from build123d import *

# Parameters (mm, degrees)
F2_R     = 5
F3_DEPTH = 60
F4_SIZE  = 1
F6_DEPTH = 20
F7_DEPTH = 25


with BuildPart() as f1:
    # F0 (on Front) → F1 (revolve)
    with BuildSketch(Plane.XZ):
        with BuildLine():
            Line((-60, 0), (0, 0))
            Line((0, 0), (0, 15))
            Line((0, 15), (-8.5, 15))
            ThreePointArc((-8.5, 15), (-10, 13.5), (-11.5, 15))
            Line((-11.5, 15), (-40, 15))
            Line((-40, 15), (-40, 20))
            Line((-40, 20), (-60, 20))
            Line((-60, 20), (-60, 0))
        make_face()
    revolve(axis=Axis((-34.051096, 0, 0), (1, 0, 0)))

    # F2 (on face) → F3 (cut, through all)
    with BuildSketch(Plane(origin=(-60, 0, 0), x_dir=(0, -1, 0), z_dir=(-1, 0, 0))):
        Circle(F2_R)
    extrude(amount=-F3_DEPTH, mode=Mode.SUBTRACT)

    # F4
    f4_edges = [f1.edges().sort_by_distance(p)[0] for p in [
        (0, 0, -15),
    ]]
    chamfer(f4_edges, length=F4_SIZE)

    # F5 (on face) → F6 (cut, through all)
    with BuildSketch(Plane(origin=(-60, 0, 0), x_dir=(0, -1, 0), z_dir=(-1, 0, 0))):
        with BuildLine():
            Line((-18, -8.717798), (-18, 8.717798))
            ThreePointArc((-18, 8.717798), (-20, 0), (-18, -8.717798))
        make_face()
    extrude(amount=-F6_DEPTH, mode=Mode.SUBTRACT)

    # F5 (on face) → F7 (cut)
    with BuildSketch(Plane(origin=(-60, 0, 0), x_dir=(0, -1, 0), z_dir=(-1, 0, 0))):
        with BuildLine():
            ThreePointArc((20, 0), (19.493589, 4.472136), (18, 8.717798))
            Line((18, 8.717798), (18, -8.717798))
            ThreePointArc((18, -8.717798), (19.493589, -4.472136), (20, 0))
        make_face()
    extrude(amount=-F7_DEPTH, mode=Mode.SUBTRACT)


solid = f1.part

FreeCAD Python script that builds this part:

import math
import FreeCAD as App
import Part
import Sketcher

V = App.Vector


def edges_at(feature, points):
    """Names of the edges that pass closest to the given points."""
    edges = feature.Shape.Edges
    near = lambda p: min(range(len(edges)), key=lambda i: edges[i].distToShape(Part.Vertex(*p))[0])
    return sorted({f"Edge{near(p) + 1}" for p in points})

doc = App.newDocument("Part")
body = doc.addObject("PartDesign::Body", "Body")

# Sketch on XZ plane
sketch1 = body.newObject("Sketcher::SketchObject", "Sketch")
sketch1.AttachmentSupport = (doc.getObject("XZ_Plane"), [""])
sketch1.MapMode = "FlatFace"
sketch1.addGeometry([
    Part.LineSegment(V(-60, 0, 0), V(0, 0, 0)),  # 0
    Part.LineSegment(V(0, 0, 0), V(0, 15, 0)),  # 1
    Part.LineSegment(V(0, 15, 0), V(-8.5, 15, 0)),  # 2
    Part.ArcOfCircle(Part.Circle(V(-10, 15, 0), V(0, 0, 1), 1.5), math.radians(180), math.radians(360)),  # 3
    Part.LineSegment(V(-11.5, 15, 0), V(-40, 15, 0)),  # 4
    Part.LineSegment(V(-40, 15, 0), V(-40, 20, 0)),  # 5
    Part.LineSegment(V(-40, 20, 0), V(-60, 20, 0)),  # 6
    Part.LineSegment(V(-60, 20, 0), V(-60, 0, 0)),  # 7
], False)
sketch1.addConstraint([
    Sketcher.Constraint("Coincident", 0, 2, 1, 1),
    Sketcher.Constraint("Coincident", 1, 2, 2, 1),
    Sketcher.Constraint("Coincident", 2, 2, 3, 2),
    Sketcher.Constraint("Coincident", 3, 1, 4, 1),
    Sketcher.Constraint("Coincident", 4, 2, 5, 1),
    Sketcher.Constraint("Coincident", 5, 2, 6, 1),
    Sketcher.Constraint("Coincident", 6, 2, 7, 1),
    Sketcher.Constraint("Coincident", 7, 2, 0, 1),
    Sketcher.Constraint("Horizontal", 0),
    Sketcher.Constraint("Vertical", 1),
    Sketcher.Constraint("Horizontal", 2),
    Sketcher.Constraint("Horizontal", 4),
    Sketcher.Constraint("Vertical", 5),
    Sketcher.Constraint("Horizontal", 6),
    Sketcher.Constraint("Vertical", 7),
    Sketcher.Constraint("Coincident", 0, 2, -1, 1),
    Sketcher.Constraint("Horizontal", 3, 3, 1, 2),
    Sketcher.Constraint("Horizontal", 2, 2, 3, 1),
    Sketcher.Constraint("Equal", 6, 7),
    Sketcher.Constraint("Radius", 3, 1.5),
    Sketcher.Constraint("DistanceX", 0, 1, 0, 2, 60.0),
    Sketcher.Constraint("DistanceX", 6, 2, 6, 1, 20.0),
    Sketcher.Constraint("DistanceY", 1, 1, 1, 2, 15.0),
    Sketcher.Constraint("DistanceX", 2, 2, 2, 1, 8.5),
])
revolution = body.newObject("PartDesign::Revolution", "Revolution")
revolution.Profile = sketch1
revolution.ReferenceAxis = (sketch1, ["H_Axis"])
revolution.Angle = 360

# Sketch on YZ plane
sketch2 = body.newObject("Sketcher::SketchObject", "Sketch001")
sketch2.AttachmentSupport = (doc.getObject("YZ_Plane"), [""])
sketch2.MapMode = "FlatFace"
sketch2.AttachmentOffset = App.Placement(V(0, 0, -60), App.Rotation())
sketch2.addGeometry(Part.Circle(V(0, 0, 0), V(0, 0, 1), 5), False)
sketch2.addConstraint([
    Sketcher.Constraint("Coincident", 0, 3, -1, 1),
    Sketcher.Constraint("Diameter", 0, 10.0),
])
pocket1 = body.newObject("PartDesign::Pocket", "Pocket")
pocket1.Profile = sketch2
pocket1.Type = "ThroughAll"
pocket1.Reversed = True
doc.recompute()

chamfer = body.newObject("PartDesign::Chamfer", "Chamfer")
chamfer.Base = (pocket1, edges_at(pocket1, [(0, 0, -15)]))
chamfer.Size = 1

# Sketch on YZ plane
sketch3 = body.newObject("Sketcher::SketchObject", "Sketch002")
sketch3.AttachmentSupport = (doc.getObject("YZ_Plane"), [""])
sketch3.MapMode = "FlatFace"
sketch3.AttachmentOffset = App.Placement(V(0, 0, -60), App.Rotation())
sketch3.addGeometry([
    Part.LineSegment(V(18, -9, 0), V(18, 9, 0)),
    Part.ArcOfCircle(Part.Circle(V(0, 0, 0), V(0, 0, 1), 20), math.radians(-26), math.radians(26)),
], False)
sketch3.addConstraint([
    Sketcher.Constraint("Coincident", 0, 1, 1, 1),
    Sketcher.Constraint("Coincident", 1, 2, 0, 2),
    Sketcher.Constraint("Vertical", 0),
    Sketcher.Constraint("Coincident", 1, 3, -1, 1),
    Sketcher.Constraint("Radius", 1, 20.0),
    Sketcher.Constraint("DistanceX", -1, 1, 0, 1, 18.0),
])
pocket2 = body.newObject("PartDesign::Pocket", "Pocket001")
pocket2.Profile = sketch3
pocket2.Type = "ThroughAll"
pocket2.Reversed = True

# Sketch on YZ plane
sketch4 = body.newObject("Sketcher::SketchObject", "Sketch003")
sketch4.AttachmentSupport = (doc.getObject("YZ_Plane"), [""])
sketch4.MapMode = "FlatFace"
sketch4.AttachmentOffset = App.Placement(V(0, 0, -60), App.Rotation())
sketch4.addGeometry([
    Part.ArcOfCircle(Part.Circle(V(0, 0, 0), V(0, 0, 1), 20), math.radians(154), math.radians(180)),
    Part.LineSegment(V(-18, 9, 0), V(-18, -9, 0)),
    Part.ArcOfCircle(Part.Circle(V(0, 0, 0), V(0, 0, 1), 20), math.radians(180), math.radians(206)),
], False)
sketch4.addConstraint([
    Sketcher.Constraint("Coincident", 0, 1, 1, 1),
    Sketcher.Constraint("Coincident", 1, 2, 2, 2),
    Sketcher.Constraint("Tangent", 2, 1, 0, 2),
    Sketcher.Constraint("Vertical", 1),
    Sketcher.Constraint("Equal", 0, 2),
    Sketcher.Constraint("PointOnObject", 2, 1, -1),
    Sketcher.Constraint("DistanceX", 0, 1, -1, 1, 18.0),
    Sketcher.Constraint("DistanceX", 2, 1, -1, 1, 20.0),
    Sketcher.Constraint("Radius", 0, 19.999989),
    Sketcher.Constraint("DistanceY", -1, 1, 0, 1, 8.717798),
])
pocket3 = body.newObject("PartDesign::Pocket", "Pocket002")
pocket3.Profile = sketch4
pocket3.Length = 25
pocket3.Reversed = True

doc.recompute()
